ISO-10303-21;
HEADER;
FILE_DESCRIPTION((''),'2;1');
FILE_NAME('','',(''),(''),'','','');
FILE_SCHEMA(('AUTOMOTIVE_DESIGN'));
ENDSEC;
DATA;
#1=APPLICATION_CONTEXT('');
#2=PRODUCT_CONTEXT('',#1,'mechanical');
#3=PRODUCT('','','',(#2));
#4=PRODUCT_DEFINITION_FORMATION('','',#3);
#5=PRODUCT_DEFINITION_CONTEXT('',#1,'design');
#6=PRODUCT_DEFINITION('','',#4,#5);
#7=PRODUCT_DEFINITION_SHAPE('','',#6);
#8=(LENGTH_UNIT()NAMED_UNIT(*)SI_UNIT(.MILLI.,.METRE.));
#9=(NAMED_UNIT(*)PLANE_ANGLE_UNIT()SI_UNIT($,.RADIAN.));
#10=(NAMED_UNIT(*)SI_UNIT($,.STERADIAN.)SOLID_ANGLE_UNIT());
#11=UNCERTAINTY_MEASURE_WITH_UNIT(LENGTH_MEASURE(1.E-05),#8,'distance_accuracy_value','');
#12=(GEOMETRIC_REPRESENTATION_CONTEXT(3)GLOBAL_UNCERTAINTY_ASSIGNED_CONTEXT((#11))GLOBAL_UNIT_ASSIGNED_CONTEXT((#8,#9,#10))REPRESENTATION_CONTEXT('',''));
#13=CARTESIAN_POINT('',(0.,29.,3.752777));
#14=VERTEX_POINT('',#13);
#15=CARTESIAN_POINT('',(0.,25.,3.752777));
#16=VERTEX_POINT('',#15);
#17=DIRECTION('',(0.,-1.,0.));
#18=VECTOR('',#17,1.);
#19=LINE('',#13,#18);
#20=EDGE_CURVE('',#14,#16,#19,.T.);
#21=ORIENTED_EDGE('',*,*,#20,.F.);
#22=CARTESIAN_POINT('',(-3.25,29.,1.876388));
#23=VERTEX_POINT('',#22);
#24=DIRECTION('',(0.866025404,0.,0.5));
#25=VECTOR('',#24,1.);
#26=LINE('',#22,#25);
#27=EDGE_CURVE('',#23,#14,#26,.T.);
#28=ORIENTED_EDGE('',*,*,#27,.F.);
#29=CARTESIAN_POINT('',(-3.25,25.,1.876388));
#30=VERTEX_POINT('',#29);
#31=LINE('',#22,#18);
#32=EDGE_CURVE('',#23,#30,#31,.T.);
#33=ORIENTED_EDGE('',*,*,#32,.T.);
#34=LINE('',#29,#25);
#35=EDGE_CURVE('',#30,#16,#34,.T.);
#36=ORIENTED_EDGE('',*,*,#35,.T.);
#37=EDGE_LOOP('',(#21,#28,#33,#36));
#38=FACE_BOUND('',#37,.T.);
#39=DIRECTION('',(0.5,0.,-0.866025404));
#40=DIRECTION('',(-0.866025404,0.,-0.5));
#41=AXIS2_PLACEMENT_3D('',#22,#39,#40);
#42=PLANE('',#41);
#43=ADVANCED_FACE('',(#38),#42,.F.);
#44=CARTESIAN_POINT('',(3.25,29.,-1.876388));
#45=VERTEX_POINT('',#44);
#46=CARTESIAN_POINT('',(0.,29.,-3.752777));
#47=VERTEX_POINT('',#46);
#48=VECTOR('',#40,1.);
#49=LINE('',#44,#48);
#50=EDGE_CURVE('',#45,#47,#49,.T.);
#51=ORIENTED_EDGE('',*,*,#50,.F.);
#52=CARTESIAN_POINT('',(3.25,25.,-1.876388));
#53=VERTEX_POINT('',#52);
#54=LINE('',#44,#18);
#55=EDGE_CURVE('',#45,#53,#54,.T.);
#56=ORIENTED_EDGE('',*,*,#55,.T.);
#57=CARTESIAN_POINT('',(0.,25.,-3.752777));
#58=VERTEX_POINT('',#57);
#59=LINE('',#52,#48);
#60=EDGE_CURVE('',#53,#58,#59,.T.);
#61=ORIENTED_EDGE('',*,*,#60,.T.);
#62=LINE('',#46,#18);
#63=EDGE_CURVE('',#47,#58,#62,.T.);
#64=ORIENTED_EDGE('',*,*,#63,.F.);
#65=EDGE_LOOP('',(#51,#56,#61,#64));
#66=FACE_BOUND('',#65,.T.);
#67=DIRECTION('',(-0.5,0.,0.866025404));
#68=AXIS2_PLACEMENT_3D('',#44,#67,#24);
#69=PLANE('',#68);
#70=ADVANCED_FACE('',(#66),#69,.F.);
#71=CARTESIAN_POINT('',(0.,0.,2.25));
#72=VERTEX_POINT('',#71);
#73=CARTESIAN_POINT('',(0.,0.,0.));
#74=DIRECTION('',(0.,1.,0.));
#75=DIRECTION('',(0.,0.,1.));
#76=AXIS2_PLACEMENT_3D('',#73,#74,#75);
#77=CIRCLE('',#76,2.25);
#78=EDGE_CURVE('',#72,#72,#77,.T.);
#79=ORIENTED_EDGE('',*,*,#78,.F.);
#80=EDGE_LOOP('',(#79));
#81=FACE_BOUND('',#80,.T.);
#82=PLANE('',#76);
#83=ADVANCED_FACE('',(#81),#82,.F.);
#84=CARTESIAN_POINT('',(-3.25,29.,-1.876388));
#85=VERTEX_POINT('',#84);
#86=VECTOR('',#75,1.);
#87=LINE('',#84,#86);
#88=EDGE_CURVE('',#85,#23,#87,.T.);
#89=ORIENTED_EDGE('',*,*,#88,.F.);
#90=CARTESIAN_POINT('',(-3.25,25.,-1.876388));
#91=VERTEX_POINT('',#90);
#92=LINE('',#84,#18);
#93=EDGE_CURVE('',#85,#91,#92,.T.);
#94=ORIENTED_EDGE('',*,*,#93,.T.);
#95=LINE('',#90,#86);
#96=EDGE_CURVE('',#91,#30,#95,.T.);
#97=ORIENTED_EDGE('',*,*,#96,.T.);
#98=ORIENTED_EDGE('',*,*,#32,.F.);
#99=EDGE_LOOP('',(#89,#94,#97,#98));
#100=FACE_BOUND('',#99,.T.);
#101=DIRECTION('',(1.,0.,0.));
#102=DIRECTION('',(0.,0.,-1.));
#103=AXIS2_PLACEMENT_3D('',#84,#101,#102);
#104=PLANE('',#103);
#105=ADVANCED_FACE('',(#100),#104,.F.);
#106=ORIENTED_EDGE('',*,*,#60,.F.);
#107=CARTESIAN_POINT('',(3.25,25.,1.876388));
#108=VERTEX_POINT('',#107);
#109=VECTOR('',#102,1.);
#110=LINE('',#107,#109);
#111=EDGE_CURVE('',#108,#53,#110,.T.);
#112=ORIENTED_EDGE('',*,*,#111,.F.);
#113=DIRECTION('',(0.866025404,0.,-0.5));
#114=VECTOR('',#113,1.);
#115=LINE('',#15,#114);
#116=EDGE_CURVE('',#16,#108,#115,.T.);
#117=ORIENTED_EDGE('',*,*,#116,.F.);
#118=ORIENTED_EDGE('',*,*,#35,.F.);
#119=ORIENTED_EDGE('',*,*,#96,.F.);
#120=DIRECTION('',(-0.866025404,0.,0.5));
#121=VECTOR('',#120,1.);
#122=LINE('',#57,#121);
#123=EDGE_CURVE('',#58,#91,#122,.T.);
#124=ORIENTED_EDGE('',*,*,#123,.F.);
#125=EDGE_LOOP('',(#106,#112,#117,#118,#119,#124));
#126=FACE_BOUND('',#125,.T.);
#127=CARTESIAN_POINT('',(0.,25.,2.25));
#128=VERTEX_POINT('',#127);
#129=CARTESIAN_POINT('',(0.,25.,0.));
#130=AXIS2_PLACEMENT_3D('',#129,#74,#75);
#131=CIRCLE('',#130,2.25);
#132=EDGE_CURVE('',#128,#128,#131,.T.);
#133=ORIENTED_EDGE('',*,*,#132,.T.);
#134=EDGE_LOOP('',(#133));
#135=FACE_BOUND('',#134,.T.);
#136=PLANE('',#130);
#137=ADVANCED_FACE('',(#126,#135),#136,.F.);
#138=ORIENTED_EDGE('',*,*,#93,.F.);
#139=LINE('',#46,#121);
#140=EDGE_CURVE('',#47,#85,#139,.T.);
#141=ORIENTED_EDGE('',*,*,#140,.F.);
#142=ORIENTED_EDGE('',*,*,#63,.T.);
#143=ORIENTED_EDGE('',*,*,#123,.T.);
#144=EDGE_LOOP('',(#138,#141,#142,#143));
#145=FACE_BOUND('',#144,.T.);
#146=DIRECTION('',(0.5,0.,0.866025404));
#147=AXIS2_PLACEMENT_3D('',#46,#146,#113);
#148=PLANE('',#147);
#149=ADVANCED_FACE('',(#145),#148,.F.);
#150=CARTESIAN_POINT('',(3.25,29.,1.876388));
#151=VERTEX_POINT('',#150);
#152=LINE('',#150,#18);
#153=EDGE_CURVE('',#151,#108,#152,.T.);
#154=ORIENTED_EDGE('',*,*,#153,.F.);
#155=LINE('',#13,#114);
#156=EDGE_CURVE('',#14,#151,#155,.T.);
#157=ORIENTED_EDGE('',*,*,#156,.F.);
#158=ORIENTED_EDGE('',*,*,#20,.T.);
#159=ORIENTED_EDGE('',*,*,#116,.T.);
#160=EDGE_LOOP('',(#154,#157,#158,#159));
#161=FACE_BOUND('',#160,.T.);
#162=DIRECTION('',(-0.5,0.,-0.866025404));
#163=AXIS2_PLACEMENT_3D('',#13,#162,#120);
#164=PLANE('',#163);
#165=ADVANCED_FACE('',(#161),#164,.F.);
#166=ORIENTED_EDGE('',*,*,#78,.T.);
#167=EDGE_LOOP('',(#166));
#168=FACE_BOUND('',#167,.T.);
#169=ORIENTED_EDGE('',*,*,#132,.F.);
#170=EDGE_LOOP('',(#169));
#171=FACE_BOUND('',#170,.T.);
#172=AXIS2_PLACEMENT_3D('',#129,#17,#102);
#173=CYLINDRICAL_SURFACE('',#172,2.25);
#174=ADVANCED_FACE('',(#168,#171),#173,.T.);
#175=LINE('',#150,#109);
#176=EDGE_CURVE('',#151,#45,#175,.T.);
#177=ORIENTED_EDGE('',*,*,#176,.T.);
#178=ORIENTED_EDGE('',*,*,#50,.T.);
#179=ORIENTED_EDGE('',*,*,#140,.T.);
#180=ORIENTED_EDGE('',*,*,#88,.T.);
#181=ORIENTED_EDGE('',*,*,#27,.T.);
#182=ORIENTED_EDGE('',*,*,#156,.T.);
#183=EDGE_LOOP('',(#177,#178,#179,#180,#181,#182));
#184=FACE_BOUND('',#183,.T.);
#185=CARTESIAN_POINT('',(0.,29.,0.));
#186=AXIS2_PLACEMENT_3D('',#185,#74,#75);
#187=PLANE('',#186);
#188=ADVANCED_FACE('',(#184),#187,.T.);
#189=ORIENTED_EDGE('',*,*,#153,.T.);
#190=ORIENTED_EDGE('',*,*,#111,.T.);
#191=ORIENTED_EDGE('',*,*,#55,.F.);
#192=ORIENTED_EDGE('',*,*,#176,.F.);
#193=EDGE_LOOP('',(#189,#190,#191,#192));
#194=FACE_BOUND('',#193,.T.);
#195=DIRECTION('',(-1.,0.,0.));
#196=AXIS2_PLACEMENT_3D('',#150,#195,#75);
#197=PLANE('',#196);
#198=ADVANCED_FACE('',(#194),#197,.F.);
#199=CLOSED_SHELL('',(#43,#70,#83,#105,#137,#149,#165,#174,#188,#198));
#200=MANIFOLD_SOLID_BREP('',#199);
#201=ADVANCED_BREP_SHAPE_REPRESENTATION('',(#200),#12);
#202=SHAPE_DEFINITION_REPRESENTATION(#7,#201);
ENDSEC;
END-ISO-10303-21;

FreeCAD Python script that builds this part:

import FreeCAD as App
import Part
import Sketcher
Q = App.Units.Quantity

doc = App.newDocument("Part")
params = doc.addObject("Spreadsheet::Sheet", "Params")
for row, (alias, value) in enumerate([
    ("sketch1_diameter", "4.5 mm"),
    ("pad1_length", "25 mm"),
    ("pad2_length", "4 mm"),
], start=1):
    params.set(f"A{row}", alias)
    params.set(f"B{row}", "=" + value)
    params.setAlias(f"B{row}", alias)

body = doc.addObject("PartDesign::Body", "Body")

# Sketch on XZ plane
sketch1 = body.newObject("Sketcher::SketchObject", "Sketch")
sketch1.AttachmentSupport = (doc.getObject("XZ_Plane"), [""])
sketch1.MapMode = "FlatFace"
sketch1.addGeometry(Part.Circle(App.Vector(0, 0, 0), App.Vector(0, 0, 1), 2.2), False)
sketch1.addConstraint(Sketcher.Constraint("Coincident", 0, 3, -1, 1))
sketch1.addConstraint(Sketcher.Constraint("Diameter", 0, 4.5))
sketch1.setExpression("Constraints[1]", "Params.sketch1_diameter")
pad1 = body.newObject("PartDesign::Pad", "Pad")
pad1.Profile = sketch1
pad1.setExpression("Length", "Params.pad1_length")
pad1.Reversed = True

# Sketch on XZ plane
sketch2 = body.newObject("Sketcher::SketchObject", "Sketch001")
sketch2.AttachmentSupport = (doc.getObject("XZ_Plane"), [""])
sketch2.MapMode = "FlatFace"
sketch2.AttachmentOffset = App.Placement(App.Vector(0, 0, -25), App.Rotation())
sketch2.addGeometry(Part.LineSegment(App.Vector(3.2, 1.9, 0), App.Vector(3.2, -1.9, 0)), False)
sketch2.addGeometry(Part.LineSegment(App.Vector(3.2, -1.9, 0), App.Vector(0, -3.8, 0)), False)
sketch2.addGeometry(Part.LineSegment(App.Vector(0, -3.8, 0), App.Vector(-3.2, -1.9, 0)), False)
sketch2.addGeometry(Part.LineSegment(App.Vector(-3.2, -1.9, 0), App.Vector(-3.2, 1.9, 0)), False)
sketch2.addGeometry(Part.LineSegment(App.Vector(-3.2, 1.9, 0), App.Vector(0, 3.8, 0)), False)
sketch2.addGeometry(Part.LineSegment(App.Vector(0, 3.8, 0), App.Vector(3.2, 1.9, 0)), False)
sketch2.addConstraint(Sketcher.Constraint("Coincident", 0, 2, 1, 1))
sketch2.addConstraint(Sketcher.Constraint("Coincident", 1, 2, 2, 1))
sketch2.addConstraint(Sketcher.Constraint("Coincident", 2, 2, 3, 1))
sketch2.addConstraint(Sketcher.Constraint("Coincident", 3, 2, 4, 1))
sketch2.addConstraint(Sketcher.Constraint("Coincident", 4, 2, 5, 1))
sketch2.addConstraint(Sketcher.Constraint("Coincident", 5, 2, 0, 1))
sketch2.addConstraint(Sketcher.Constraint("Vertical", 0))
sketch2.addConstraint(Sketcher.Constraint("Vertical", 3))
sketch2.addConstraint(Sketcher.Constraint("Symmetric", 0, 2, 3, 2, -1, 1))
sketch2.addConstraint(Sketcher.Constraint("Symmetric", 1, 2, 4, 2, -1, 1))
sketch2.addConstraint(Sketcher.Constraint("PointOnObject", 1, 2, -2))
sketch2.addConstraint(Sketcher.Constraint("Parallel", 2, 5))
sketch2.addConstraint(Sketcher.Constraint("Horizontal", 0, 2, 2, 2))
sketch2.addConstraint(Sketcher.Constraint("Angle", 1, Q("-150 deg")))
sketch2.addConstraint(Sketcher.Constraint("DistanceX", 2, 2, 0, 2, 6.5))
sketch2.addConstraint(Sketcher.Constraint("DistanceY", 0, 2, 0, 1, 3.752777))
pad2 = body.newObject("PartDesign::Pad", "Pad001")
pad2.Profile = sketch2
pad2.setExpression("Length", "Params.pad2_length")
pad2.Reversed = True

doc.recompute()
